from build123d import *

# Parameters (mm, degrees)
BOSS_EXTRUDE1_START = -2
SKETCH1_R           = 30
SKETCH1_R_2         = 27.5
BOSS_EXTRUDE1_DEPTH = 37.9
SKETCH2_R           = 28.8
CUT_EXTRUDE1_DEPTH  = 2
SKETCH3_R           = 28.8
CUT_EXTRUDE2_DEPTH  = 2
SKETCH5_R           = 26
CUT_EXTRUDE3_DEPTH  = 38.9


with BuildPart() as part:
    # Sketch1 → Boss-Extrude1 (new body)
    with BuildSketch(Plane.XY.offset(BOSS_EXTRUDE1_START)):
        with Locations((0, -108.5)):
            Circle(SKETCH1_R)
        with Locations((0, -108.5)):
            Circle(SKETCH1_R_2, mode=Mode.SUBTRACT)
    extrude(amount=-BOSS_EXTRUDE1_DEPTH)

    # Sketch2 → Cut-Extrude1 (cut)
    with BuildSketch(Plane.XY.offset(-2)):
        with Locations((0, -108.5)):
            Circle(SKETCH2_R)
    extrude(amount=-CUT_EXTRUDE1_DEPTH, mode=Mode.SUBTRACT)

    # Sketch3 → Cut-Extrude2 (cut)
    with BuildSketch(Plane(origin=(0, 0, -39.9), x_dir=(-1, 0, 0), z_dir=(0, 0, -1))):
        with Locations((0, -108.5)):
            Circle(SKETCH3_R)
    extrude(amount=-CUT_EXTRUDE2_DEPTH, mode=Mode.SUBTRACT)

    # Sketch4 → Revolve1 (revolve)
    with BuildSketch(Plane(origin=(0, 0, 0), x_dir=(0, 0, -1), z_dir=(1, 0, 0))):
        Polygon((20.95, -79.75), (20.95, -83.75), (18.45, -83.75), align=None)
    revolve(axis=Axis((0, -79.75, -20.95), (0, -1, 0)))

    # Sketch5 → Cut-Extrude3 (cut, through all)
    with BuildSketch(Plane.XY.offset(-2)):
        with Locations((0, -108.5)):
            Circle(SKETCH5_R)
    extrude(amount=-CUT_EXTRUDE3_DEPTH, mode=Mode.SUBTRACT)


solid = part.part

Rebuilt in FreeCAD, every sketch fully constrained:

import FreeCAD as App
import Part
import Sketcher

V = App.Vector


def add_polygon(sketch, points):
    """Adds a closed chain of lines whose ends are joined by coincident constraints."""
    first, n = sketch.GeometryCount, len(points)
    for a, b in zip(points, points[1:] + points[:1]):
        sketch.addGeometry(Part.LineSegment(App.Vector(*a, 0), App.Vector(*b, 0)), False)
    for i in range(n):
        sketch.addConstraint(Sketcher.Constraint("Coincident", first + i, 2, first + (i + 1) % n, 1))

doc = App.newDocument("Part")
body = doc.addObject("PartDesign::Body", "Body")

sketch1 = body.newObject("Sketcher::SketchObject", "Sketch")
sketch1.AttachmentSupport = (doc.getObject("XY_Plane"), [""])
sketch1.MapMode = "FlatFace"
sketch1.AttachmentOffset = App.Placement(V(0, 0, -2), App.Rotation())
sketch1.addGeometry(Part.Circle(V(0, -108, 0), V(0, 0, 1), 30), False)
sketch1.addGeometry(Part.Circle(V(0, -108, 0), V(0, 0, 1), 28), False)
sketch1.addConstraint(Sketcher.Constraint("Coincident", 1, 3, 0, 3))
sketch1.addConstraint(Sketcher.Constraint("PointOnObject", 0, 3, -2))
sketch1.addConstraint(Sketcher.Constraint("Diameter", 0, 60.0))
sketch1.addConstraint(Sketcher.Constraint("Diameter", 1, 55.0))
sketch1.addConstraint(Sketcher.Constraint("DistanceY", 0, 3, -1, 1, 108.5))
pad1 = body.newObject("PartDesign::Pad", "Pad")
pad1.Profile = sketch1
pad1.Length = 37.9
pad1.Reversed = True

sketch2 = body.newObject("Sketcher::SketchObject", "Sketch001")
sketch2.AttachmentSupport = (doc.getObject("XY_Plane"), [""])
sketch2.MapMode = "FlatFace"
sketch2.AttachmentOffset = App.Placement(V(0, 0, -2), App.Rotation())
sketch2.addGeometry(Part.Circle(V(0, -108, 0), V(0, 0, 1), 29), False)
sketch2.addConstraint(Sketcher.Constraint("PointOnObject", 0, 3, -2))
sketch2.addConstraint(Sketcher.Constraint("Diameter", 0, 57.6))
sketch2.addConstraint(Sketcher.Constraint("DistanceY", 0, 3, -1, 1, 108.5))
pocket1 = body.newObject("PartDesign::Pocket", "Pocket")
pocket1.Profile = sketch2
pocket1.Length = 2

sketch3 = body.newObject("Sketcher::SketchObject", "Sketch002")
sketch3.AttachmentSupport = (doc.getObject("XY_Plane"), [""])
sketch3.MapMode = "FlatFace"
sketch3.AttachmentOffset = App.Placement(V(0, 0, -39.9), App.Rotation())
sketch3.addGeometry(Part.Circle(V(0, -108, 0), V(0, 0, 1), 29), False)
sketch3.addConstraint(Sketcher.Constraint("PointOnObject", 0, 3, -2))
sketch3.addConstraint(Sketcher.Constraint("Diameter", 0, 57.6))
sketch3.addConstraint(Sketcher.Constraint("DistanceY", 0, 3, -1, 1, 108.5))
pocket2 = body.newObject("PartDesign::Pocket", "Pocket001")
pocket2.Profile = sketch3
pocket2.Length = 2
pocket2.Reversed = True

sketch4 = body.newObject("Sketcher::SketchObject", "Sketch003")
sketch4.AttachmentSupport = (doc.getObject("YZ_Plane"), [""])
sketch4.MapMode = "FlatFace"
add_polygon(sketch4, [(-83.8, -20.9), (-79.8, -20.9), (-83.8, -18.4)])
sketch4.addGeometry(Part.LineSegment(V(-79.8, -20.9, 0), V(-83.8, -20.9, 0)), True)
sketch4.addConstraint(Sketcher.Constraint("Horizontal", 0))
sketch4.addConstraint(Sketcher.Constraint("Vertical", 2))
sketch4.addConstraint(Sketcher.Constraint("Horizontal", 3))
sketch4.addConstraint(Sketcher.Constraint("Coincident", 3, 1, 0, 2))
sketch4.addConstraint(Sketcher.Constraint("Vertical", 1, 2, 3, 2))
sketch4.addConstraint(Sketcher.Constraint("DistanceX", 0, 1, 0, 2, 4.0))
sketch4.addConstraint(Sketcher.Constraint("DistanceY", 2, 2, 2, 1, 2.5))
sketch4.addConstraint(Sketcher.Constraint("DistanceX", 0, 2, -1, 1, 79.75))
sketch4.addConstraint(Sketcher.Constraint("DistanceY", 0, 2, -1, 1, 20.95))
revolution = body.newObject("PartDesign::Revolution", "Revolution")
revolution.Profile = sketch4
revolution.ReferenceAxis = (sketch4, ["Axis0"])
revolution.Angle = 360

sketch5 = body.newObject("Sketcher::SketchObject", "Sketch004")
sketch5.AttachmentSupport = (doc.getObject("XY_Plane"), [""])
sketch5.MapMode = "FlatFace"
sketch5.AttachmentOffset = App.Placement(V(0, 0, -2), App.Rotation())
sketch5.addGeometry(Part.Circle(V(0, -108, 0), V(0, 0, 1), 26), False)
sketch5.addConstraint(Sketcher.Constraint("PointOnObject", 0, 3, -2))
sketch5.addConstraint(Sketcher.Constraint("Diameter", 0, 52.0))
sketch5.addConstraint(Sketcher.Constraint("DistanceY", 0, 3, -1, 1, 108.5))
pocket3 = body.newObject("PartDesign::Pocket", "Pocket002")
pocket3.Profile = sketch5
pocket3.Type = "ThroughAll"

doc.recompute()
